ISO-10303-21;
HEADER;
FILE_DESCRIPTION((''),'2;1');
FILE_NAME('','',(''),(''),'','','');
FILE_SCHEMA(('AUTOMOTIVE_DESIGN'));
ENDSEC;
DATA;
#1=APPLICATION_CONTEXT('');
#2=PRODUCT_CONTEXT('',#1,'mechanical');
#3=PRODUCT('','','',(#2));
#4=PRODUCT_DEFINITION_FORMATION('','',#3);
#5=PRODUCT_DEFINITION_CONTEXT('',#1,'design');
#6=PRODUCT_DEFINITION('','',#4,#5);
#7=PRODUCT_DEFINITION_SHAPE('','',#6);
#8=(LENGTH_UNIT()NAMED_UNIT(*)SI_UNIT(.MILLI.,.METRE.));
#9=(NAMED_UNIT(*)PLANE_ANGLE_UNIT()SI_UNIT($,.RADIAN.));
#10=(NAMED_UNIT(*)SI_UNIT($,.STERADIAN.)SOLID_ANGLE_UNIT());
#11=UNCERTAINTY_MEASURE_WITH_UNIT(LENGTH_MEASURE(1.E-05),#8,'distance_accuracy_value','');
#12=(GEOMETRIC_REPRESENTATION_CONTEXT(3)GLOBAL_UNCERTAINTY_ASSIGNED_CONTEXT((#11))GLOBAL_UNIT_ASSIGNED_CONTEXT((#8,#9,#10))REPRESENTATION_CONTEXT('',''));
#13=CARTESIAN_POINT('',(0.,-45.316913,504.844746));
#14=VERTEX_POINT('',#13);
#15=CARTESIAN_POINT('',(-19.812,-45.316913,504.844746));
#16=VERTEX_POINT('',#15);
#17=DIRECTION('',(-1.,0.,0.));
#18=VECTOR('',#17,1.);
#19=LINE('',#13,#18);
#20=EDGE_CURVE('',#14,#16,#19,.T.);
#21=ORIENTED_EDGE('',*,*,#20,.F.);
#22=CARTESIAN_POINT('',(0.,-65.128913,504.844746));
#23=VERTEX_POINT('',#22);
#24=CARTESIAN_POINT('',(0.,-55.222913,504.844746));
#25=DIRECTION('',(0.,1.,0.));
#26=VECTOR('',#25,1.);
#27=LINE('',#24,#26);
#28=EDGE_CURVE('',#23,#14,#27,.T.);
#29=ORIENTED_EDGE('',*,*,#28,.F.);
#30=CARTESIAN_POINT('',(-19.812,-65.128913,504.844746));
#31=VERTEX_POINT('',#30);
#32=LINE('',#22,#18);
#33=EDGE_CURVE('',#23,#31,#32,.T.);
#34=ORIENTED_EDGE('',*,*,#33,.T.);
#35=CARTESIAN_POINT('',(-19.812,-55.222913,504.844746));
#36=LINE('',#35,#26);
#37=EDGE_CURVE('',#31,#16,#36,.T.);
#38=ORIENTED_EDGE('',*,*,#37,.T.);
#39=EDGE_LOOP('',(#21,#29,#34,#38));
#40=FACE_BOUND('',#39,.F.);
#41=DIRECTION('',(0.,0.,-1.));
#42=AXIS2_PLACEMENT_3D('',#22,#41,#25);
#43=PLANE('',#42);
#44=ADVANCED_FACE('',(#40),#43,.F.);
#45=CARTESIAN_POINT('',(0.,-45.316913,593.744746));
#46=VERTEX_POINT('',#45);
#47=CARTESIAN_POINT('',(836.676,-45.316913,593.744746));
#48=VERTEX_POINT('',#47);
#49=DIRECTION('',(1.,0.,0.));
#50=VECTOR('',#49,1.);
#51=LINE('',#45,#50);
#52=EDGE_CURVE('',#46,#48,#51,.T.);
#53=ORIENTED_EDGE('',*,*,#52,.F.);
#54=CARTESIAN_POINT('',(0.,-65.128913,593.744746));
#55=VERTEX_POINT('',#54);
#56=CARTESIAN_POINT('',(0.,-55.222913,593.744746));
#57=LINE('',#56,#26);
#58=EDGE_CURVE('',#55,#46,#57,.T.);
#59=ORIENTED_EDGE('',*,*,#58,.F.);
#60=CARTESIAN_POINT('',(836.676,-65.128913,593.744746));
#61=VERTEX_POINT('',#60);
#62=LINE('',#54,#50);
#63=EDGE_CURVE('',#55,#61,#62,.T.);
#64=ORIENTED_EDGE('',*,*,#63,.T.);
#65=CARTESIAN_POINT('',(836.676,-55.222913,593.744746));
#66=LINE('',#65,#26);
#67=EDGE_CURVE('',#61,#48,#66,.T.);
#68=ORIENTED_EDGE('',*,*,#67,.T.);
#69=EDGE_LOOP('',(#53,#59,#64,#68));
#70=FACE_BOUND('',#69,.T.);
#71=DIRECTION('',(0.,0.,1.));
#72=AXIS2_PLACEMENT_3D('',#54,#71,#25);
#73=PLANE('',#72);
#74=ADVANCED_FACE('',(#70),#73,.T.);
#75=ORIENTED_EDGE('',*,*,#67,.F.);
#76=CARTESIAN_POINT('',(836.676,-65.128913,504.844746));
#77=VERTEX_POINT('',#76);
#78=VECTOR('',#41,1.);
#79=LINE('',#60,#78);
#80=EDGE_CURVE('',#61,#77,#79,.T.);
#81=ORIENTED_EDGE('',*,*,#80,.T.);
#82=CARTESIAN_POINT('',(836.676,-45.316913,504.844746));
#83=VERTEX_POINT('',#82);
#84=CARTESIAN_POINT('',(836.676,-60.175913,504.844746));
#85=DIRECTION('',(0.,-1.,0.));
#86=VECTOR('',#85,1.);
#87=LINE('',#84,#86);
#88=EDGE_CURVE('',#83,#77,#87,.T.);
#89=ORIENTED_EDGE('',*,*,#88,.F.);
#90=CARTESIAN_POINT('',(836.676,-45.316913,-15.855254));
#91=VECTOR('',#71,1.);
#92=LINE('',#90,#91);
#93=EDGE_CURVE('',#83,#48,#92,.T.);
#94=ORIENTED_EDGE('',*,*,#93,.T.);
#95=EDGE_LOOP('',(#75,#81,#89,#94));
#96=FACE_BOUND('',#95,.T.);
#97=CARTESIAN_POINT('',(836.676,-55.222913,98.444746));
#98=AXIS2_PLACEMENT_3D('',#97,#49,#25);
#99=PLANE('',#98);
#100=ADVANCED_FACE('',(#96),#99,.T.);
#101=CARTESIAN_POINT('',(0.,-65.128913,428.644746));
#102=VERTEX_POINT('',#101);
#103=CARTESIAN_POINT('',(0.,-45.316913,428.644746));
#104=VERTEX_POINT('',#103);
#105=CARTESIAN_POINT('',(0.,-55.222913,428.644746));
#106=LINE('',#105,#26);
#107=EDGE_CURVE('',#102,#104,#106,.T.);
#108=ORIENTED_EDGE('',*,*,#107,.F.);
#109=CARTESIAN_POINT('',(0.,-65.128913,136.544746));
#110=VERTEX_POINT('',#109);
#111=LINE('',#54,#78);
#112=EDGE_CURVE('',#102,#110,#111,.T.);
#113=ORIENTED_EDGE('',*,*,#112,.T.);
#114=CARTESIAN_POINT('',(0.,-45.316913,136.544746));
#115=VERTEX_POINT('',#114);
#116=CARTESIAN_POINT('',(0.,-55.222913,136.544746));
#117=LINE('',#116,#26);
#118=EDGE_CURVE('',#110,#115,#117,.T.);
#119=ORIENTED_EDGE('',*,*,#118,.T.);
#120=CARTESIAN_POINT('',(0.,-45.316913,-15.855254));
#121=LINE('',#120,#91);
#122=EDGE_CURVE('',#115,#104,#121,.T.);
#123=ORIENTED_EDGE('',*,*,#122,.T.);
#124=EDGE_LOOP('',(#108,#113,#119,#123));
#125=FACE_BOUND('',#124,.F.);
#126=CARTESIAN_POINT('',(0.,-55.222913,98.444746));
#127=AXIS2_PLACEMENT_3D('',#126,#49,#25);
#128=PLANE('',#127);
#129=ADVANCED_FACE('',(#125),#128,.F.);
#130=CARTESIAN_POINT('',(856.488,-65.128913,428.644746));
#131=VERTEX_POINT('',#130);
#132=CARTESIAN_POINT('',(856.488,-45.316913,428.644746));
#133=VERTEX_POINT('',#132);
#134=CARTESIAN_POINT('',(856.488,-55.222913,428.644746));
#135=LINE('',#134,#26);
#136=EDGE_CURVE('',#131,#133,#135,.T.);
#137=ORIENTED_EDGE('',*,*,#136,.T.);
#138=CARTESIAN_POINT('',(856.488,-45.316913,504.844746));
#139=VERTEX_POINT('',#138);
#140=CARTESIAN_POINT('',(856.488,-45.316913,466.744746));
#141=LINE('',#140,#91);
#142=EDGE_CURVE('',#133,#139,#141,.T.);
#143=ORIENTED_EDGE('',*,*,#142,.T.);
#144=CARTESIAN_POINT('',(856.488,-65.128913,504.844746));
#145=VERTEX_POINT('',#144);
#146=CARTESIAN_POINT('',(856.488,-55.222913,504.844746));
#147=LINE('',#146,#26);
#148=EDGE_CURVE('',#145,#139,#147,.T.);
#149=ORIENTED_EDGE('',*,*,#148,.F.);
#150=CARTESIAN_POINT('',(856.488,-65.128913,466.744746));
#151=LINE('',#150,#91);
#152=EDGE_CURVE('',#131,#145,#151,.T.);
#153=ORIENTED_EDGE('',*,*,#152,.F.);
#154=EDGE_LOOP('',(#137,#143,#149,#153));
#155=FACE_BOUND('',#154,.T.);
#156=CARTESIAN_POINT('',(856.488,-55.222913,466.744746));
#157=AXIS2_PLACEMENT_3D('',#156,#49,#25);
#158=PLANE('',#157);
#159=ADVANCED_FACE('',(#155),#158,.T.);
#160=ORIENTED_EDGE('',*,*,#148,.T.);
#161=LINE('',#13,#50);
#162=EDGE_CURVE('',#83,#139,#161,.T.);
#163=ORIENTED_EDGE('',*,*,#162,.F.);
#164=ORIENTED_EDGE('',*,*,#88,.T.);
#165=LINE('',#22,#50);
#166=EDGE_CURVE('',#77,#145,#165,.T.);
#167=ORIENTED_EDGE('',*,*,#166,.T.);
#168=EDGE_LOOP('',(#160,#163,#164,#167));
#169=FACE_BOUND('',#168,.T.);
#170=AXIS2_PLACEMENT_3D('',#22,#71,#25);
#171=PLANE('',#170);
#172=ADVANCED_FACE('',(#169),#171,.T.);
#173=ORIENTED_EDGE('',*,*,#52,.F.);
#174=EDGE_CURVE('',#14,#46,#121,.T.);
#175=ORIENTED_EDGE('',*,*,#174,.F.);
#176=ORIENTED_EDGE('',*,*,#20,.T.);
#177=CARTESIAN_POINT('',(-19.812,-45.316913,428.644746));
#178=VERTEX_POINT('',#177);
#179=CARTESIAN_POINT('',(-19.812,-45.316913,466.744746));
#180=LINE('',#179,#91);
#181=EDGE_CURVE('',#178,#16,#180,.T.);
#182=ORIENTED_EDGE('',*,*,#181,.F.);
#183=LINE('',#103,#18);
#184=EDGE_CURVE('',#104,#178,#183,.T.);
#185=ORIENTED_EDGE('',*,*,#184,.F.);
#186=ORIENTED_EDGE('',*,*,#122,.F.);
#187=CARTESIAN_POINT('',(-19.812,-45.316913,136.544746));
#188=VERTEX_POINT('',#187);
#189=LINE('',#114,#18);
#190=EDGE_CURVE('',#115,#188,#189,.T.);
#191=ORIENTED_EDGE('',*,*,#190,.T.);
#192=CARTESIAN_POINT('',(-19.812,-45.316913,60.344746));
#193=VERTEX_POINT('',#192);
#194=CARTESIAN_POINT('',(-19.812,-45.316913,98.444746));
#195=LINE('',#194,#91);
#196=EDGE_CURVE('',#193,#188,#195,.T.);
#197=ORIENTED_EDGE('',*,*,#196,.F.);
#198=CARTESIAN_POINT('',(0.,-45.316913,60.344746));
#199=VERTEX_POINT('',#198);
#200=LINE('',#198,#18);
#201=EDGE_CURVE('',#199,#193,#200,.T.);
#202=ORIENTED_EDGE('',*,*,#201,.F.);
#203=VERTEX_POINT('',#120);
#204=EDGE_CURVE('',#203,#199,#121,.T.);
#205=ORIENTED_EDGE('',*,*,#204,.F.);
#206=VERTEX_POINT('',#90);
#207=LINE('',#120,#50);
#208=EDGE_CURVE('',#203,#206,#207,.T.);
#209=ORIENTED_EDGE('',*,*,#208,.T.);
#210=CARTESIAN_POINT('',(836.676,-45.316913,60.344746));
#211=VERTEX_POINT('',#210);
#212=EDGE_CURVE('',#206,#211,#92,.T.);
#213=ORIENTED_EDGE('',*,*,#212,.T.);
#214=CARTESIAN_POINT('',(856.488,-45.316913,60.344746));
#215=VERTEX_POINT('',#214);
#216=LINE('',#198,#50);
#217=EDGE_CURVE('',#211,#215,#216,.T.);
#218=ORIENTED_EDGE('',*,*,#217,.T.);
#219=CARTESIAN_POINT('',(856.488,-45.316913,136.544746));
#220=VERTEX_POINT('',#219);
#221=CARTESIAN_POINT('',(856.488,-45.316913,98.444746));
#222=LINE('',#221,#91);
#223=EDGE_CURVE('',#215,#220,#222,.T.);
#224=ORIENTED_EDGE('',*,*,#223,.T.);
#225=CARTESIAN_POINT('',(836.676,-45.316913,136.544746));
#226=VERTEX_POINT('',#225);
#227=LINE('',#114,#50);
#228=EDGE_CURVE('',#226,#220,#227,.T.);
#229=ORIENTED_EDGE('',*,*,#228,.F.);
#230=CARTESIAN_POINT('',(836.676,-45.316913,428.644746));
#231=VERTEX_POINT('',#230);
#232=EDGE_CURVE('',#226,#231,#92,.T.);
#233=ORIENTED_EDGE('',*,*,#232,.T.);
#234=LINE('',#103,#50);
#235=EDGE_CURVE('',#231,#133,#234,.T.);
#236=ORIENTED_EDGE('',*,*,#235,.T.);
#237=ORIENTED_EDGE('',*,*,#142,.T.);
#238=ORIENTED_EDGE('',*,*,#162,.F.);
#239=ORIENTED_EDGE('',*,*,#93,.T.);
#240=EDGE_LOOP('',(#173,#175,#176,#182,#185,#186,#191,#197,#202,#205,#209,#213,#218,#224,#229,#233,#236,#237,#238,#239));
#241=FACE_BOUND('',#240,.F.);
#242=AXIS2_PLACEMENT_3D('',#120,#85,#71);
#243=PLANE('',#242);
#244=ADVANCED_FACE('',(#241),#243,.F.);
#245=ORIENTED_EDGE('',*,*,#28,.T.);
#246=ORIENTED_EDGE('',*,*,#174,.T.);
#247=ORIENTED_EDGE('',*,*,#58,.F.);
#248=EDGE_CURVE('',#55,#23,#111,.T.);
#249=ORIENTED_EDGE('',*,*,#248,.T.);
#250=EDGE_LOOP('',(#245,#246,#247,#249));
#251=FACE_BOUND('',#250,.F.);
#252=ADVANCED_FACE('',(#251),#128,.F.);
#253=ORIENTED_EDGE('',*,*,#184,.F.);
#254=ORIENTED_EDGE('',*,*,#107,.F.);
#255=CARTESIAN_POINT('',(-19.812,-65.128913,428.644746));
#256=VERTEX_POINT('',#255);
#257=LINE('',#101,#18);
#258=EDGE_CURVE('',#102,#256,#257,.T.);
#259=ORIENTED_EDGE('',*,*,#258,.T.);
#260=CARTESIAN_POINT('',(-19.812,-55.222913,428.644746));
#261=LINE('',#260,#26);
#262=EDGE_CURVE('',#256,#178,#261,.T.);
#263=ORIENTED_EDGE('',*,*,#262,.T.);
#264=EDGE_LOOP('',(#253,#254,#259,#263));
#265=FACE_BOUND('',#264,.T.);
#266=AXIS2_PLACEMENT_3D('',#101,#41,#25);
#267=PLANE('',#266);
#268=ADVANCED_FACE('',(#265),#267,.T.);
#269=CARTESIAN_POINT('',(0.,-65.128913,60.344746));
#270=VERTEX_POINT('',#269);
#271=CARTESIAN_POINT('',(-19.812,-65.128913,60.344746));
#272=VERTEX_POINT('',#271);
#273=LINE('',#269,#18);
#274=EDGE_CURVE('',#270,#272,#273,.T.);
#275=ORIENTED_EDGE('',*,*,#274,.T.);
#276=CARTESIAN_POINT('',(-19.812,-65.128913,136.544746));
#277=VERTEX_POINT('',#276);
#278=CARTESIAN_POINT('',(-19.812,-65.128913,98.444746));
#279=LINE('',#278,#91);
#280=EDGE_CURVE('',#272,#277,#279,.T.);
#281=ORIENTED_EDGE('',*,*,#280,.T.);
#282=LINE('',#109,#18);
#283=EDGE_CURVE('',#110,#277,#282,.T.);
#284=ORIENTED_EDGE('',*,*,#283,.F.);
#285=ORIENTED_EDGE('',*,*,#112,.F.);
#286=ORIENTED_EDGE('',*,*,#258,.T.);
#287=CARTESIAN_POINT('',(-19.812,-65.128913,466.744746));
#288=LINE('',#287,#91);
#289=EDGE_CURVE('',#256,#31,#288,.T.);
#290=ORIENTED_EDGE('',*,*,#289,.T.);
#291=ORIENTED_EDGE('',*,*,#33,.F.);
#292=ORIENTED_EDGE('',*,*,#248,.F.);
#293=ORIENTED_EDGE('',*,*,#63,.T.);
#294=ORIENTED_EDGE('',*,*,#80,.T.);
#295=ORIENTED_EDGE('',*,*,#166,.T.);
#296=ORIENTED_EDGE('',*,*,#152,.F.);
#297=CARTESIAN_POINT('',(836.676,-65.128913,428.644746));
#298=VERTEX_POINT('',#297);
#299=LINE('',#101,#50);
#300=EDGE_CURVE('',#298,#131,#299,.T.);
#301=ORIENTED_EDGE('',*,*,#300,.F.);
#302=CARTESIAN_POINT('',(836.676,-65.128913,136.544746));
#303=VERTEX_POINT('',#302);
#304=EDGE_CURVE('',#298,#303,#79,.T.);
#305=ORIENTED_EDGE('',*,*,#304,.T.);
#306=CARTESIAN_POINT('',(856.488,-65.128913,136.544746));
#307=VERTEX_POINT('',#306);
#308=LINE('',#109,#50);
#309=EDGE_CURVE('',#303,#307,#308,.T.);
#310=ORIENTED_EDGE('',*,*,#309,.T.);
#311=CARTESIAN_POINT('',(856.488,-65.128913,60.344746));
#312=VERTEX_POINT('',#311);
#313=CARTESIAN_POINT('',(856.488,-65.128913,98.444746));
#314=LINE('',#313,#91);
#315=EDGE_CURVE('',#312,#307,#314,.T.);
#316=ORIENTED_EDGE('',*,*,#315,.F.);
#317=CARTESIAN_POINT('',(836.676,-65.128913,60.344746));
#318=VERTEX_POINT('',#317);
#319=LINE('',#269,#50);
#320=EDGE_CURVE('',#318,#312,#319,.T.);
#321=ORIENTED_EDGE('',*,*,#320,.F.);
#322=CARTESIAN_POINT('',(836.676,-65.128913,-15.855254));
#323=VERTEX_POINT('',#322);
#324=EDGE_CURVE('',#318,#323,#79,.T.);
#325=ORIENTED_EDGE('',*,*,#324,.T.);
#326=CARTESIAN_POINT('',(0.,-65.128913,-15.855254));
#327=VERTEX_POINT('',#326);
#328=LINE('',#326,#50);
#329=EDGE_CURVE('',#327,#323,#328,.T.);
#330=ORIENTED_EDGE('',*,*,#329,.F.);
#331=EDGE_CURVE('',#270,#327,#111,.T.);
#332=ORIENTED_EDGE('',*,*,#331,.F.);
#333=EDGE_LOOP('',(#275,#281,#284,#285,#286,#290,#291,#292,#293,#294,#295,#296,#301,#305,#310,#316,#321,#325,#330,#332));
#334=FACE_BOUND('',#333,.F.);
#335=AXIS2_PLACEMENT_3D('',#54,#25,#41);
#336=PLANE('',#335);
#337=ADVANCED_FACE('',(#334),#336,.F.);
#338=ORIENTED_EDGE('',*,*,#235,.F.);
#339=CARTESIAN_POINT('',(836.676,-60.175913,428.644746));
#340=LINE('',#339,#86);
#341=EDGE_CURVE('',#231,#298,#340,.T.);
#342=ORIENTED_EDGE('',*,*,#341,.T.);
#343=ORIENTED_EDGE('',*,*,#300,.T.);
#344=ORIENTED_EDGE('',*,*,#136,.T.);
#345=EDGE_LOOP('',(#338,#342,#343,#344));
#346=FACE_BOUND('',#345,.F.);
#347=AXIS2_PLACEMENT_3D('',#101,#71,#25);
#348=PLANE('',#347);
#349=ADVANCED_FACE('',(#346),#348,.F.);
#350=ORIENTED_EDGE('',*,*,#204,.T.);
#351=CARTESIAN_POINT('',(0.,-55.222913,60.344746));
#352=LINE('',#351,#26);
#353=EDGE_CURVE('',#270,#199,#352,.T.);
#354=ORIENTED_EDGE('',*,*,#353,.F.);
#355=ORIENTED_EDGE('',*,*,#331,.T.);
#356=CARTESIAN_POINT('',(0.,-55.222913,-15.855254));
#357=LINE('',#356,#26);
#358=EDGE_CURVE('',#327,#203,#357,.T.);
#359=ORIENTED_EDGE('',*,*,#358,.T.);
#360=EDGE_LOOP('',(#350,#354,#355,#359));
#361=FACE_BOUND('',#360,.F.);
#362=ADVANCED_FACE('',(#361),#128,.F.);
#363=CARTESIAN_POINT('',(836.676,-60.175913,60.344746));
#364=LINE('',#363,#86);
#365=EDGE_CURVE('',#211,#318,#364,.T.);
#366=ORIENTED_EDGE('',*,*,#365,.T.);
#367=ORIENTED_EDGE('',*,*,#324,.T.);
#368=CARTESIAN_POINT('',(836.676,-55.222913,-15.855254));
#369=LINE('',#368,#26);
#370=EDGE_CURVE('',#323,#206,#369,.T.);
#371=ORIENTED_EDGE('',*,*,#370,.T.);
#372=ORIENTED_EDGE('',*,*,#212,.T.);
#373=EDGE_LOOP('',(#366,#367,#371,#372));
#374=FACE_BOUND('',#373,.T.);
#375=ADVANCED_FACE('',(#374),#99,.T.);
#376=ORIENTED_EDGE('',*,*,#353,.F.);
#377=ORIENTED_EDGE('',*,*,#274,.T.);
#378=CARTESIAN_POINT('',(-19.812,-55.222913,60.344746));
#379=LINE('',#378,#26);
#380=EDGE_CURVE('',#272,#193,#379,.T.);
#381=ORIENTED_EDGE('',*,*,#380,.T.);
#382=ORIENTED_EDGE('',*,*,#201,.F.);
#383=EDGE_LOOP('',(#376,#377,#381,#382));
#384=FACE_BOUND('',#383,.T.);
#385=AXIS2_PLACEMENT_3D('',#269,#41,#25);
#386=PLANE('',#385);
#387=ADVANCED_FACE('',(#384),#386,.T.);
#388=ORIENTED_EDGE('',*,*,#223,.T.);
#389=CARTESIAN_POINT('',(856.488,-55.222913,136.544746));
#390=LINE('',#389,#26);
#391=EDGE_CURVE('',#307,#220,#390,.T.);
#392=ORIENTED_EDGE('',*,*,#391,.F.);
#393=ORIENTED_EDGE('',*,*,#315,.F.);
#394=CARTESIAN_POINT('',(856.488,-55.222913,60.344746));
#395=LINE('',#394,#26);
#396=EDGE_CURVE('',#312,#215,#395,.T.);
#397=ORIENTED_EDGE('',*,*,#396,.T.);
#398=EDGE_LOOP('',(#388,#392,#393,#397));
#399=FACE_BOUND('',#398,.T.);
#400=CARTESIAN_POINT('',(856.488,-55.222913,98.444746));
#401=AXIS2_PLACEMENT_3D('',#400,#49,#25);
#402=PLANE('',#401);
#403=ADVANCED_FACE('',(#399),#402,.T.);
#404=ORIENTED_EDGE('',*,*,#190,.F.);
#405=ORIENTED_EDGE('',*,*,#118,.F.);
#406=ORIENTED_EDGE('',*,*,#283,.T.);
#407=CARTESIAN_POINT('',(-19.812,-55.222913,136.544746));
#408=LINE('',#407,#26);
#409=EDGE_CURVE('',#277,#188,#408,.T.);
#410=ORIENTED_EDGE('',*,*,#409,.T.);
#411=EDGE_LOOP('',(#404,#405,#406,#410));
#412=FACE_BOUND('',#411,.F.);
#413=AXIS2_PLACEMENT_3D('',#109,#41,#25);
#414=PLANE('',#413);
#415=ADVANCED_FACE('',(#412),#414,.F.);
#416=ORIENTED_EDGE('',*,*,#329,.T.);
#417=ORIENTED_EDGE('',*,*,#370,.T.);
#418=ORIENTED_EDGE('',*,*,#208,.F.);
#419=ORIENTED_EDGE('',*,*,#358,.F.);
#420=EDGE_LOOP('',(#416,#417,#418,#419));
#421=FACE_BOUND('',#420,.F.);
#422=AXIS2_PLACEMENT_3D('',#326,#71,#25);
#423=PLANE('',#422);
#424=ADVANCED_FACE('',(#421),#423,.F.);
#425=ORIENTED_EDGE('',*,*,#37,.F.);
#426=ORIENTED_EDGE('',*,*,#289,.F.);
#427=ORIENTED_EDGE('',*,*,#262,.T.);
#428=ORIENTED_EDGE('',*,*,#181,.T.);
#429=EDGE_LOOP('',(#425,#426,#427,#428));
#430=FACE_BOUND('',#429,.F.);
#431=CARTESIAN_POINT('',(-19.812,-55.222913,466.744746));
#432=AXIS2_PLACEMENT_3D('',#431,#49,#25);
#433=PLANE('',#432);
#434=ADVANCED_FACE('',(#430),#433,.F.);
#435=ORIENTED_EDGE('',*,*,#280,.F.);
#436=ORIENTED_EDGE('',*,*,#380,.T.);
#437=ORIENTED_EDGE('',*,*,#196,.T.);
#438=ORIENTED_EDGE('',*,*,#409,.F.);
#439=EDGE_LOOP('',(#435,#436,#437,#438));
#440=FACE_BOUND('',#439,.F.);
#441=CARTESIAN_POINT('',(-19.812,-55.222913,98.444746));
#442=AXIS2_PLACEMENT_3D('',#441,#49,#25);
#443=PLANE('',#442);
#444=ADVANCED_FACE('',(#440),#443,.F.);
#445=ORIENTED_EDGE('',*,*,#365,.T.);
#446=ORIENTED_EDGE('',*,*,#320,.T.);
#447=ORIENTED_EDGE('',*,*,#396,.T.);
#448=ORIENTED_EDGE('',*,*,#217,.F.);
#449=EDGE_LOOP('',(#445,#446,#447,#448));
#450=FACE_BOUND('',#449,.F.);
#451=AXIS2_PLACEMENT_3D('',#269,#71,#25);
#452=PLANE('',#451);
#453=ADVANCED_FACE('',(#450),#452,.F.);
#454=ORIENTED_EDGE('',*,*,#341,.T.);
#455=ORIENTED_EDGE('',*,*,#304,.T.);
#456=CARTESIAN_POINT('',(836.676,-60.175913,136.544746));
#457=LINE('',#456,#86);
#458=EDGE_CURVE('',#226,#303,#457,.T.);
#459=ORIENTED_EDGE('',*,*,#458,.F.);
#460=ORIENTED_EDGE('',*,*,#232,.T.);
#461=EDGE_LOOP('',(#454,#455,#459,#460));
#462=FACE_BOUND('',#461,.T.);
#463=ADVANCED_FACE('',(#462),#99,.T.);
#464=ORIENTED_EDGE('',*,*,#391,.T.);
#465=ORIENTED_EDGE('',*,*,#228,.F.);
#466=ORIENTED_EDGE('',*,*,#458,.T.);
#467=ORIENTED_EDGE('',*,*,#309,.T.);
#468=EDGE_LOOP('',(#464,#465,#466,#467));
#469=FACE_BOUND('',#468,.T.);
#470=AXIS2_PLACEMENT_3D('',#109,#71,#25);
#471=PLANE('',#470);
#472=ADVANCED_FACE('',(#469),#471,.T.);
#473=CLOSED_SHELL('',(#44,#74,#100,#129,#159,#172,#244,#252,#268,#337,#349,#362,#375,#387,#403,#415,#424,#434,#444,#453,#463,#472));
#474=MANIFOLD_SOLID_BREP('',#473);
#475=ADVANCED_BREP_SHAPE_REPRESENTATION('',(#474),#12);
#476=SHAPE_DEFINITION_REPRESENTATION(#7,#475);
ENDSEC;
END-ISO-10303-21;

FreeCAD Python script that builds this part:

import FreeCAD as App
import Part
import Sketcher

V = App.Vector
Q = App.Units.Quantity

doc = App.newDocument("Part")
body = doc.addObject("PartDesign::Body", "Body")

# Sketch on YZ plane
sketch1 = body.newObject("Sketcher::SketchObject", "Sketch")
sketch1.AttachmentSupport = (doc.getObject("YZ_Plane"), [""])
sketch1.MapMode = "FlatFace"
sketch1.addGeometry([
    Part.LineSegment(V(-45, 594, 0), V(-65, 594, 0)),
    Part.LineSegment(V(-65, 594, 0), V(-65, -16, 0)),
    Part.LineSegment(V(-65, -16, 0), V(-45, -16, 0)),
    Part.LineSegment(V(-45, -16, 0), V(-45, 594, 0)),
], False)
sketch1.addConstraint([
    Sketcher.Constraint("Coincident", 0, 2, 1, 1),
    Sketcher.Constraint("Coincident", 1, 2, 2, 1),
    Sketcher.Constraint("Coincident", 2, 2, 3, 1),
    Sketcher.Constraint("Coincident", 3, 2, 0, 1),
    Sketcher.Constraint("Horizontal", 0),
    Sketcher.Constraint("Vertical", 1),
    Sketcher.Constraint("Horizontal", 2),
    Sketcher.Constraint("Vertical", 3),
    Sketcher.Constraint("DistanceY", 1, 2, 1, 1, Q("24 in")),
    Sketcher.Constraint("DistanceX", 0, 2, 0, 1, Q("0.78 in")),
    Sketcher.Constraint("DistanceX", 0, 2, -1, 1, Q("65.128913 mm")),
    Sketcher.Constraint("DistanceY", -1, 1, 0, 2, Q("593.744746 mm")),
])
pad1 = body.newObject("PartDesign::Pad", "Pad")
pad1.Profile = sketch1
pad1.Length = Q("32.94 in")

# Sketch on YZ plane
sketch2 = body.newObject("Sketcher::SketchObject", "Sketch001")
sketch2.AttachmentSupport = (doc.getObject("YZ_Plane"), [""])
sketch2.MapMode = "FlatFace"
sketch2.addGeometry([
    Part.LineSegment(V(-65, 505, 0), V(-65, 429, 0)),  # 0
    Part.LineSegment(V(-65, 429, 0), V(-45, 429, 0)),  # 1
    Part.LineSegment(V(-45, 429, 0), V(-45, 505, 0)),  # 2
    Part.LineSegment(V(-45, 505, 0), V(-65, 505, 0)),  # 3
    Part.LineSegment(V(-65, 137, 0), V(-65, 60, 0)),  # 4
    Part.LineSegment(V(-65, 60, 0), V(-45, 60, 0)),  # 5
    Part.LineSegment(V(-45, 60, 0), V(-45, 137, 0)),  # 6
    Part.LineSegment(V(-45, 137, 0), V(-65, 137, 0)),  # 7
], False)
sketch2.addConstraint([
    Sketcher.Constraint("Coincident", 0, 2, 1, 1),
    Sketcher.Constraint("Coincident", 1, 2, 2, 1),
    Sketcher.Constraint("Coincident", 2, 2, 3, 1),
    Sketcher.Constraint("Coincident", 3, 2, 0, 1),
    Sketcher.Constraint("Coincident", 4, 2, 5, 1),
    Sketcher.Constraint("Coincident", 5, 2, 6, 1),
    Sketcher.Constraint("Coincident", 6, 2, 7, 1),
    Sketcher.Constraint("Coincident", 7, 2, 4, 1),
    Sketcher.Constraint("Vertical", 0),
    Sketcher.Constraint("Horizontal", 1),
    Sketcher.Constraint("Vertical", 2),
    Sketcher.Constraint("Horizontal", 3),
    Sketcher.Constraint("Vertical", 4),
    Sketcher.Constraint("Horizontal", 5),
    Sketcher.Constraint("Vertical", 6),
    Sketcher.Constraint("Horizontal", 7),
    Sketcher.Constraint("Vertical", 3, 2, 4, 2),
    Sketcher.Constraint("Vertical", 2, 2, 5, 2),
    Sketcher.Constraint("Equal", 2, 4),
    Sketcher.Constraint("DistanceY", 0, 2, 0, 1, Q("3 in")),
    Sketcher.Constraint("DistanceX", 1, 1, 1, 2, Q("0.78 in")),
    Sketcher.Constraint("DistanceY", 4, 2, 0, 2, Q("14.5 in")),
    Sketcher.Constraint("DistanceX", 0, 2, -1, 1, Q("65.128913 mm")),
    Sketcher.Constraint("DistanceY", -1, 1, 0, 2, Q("428.644746 mm")),
])
pad2 = body.newObject("PartDesign::Pad", "Pad001")
pad2.Profile = sketch2
pad2.Type = "TwoLengths"
pad2.Length = Q("0.78 in")
pad2.Length2 = Q("33.72 in")
pad2.Reversed = True

doc.recompute()
